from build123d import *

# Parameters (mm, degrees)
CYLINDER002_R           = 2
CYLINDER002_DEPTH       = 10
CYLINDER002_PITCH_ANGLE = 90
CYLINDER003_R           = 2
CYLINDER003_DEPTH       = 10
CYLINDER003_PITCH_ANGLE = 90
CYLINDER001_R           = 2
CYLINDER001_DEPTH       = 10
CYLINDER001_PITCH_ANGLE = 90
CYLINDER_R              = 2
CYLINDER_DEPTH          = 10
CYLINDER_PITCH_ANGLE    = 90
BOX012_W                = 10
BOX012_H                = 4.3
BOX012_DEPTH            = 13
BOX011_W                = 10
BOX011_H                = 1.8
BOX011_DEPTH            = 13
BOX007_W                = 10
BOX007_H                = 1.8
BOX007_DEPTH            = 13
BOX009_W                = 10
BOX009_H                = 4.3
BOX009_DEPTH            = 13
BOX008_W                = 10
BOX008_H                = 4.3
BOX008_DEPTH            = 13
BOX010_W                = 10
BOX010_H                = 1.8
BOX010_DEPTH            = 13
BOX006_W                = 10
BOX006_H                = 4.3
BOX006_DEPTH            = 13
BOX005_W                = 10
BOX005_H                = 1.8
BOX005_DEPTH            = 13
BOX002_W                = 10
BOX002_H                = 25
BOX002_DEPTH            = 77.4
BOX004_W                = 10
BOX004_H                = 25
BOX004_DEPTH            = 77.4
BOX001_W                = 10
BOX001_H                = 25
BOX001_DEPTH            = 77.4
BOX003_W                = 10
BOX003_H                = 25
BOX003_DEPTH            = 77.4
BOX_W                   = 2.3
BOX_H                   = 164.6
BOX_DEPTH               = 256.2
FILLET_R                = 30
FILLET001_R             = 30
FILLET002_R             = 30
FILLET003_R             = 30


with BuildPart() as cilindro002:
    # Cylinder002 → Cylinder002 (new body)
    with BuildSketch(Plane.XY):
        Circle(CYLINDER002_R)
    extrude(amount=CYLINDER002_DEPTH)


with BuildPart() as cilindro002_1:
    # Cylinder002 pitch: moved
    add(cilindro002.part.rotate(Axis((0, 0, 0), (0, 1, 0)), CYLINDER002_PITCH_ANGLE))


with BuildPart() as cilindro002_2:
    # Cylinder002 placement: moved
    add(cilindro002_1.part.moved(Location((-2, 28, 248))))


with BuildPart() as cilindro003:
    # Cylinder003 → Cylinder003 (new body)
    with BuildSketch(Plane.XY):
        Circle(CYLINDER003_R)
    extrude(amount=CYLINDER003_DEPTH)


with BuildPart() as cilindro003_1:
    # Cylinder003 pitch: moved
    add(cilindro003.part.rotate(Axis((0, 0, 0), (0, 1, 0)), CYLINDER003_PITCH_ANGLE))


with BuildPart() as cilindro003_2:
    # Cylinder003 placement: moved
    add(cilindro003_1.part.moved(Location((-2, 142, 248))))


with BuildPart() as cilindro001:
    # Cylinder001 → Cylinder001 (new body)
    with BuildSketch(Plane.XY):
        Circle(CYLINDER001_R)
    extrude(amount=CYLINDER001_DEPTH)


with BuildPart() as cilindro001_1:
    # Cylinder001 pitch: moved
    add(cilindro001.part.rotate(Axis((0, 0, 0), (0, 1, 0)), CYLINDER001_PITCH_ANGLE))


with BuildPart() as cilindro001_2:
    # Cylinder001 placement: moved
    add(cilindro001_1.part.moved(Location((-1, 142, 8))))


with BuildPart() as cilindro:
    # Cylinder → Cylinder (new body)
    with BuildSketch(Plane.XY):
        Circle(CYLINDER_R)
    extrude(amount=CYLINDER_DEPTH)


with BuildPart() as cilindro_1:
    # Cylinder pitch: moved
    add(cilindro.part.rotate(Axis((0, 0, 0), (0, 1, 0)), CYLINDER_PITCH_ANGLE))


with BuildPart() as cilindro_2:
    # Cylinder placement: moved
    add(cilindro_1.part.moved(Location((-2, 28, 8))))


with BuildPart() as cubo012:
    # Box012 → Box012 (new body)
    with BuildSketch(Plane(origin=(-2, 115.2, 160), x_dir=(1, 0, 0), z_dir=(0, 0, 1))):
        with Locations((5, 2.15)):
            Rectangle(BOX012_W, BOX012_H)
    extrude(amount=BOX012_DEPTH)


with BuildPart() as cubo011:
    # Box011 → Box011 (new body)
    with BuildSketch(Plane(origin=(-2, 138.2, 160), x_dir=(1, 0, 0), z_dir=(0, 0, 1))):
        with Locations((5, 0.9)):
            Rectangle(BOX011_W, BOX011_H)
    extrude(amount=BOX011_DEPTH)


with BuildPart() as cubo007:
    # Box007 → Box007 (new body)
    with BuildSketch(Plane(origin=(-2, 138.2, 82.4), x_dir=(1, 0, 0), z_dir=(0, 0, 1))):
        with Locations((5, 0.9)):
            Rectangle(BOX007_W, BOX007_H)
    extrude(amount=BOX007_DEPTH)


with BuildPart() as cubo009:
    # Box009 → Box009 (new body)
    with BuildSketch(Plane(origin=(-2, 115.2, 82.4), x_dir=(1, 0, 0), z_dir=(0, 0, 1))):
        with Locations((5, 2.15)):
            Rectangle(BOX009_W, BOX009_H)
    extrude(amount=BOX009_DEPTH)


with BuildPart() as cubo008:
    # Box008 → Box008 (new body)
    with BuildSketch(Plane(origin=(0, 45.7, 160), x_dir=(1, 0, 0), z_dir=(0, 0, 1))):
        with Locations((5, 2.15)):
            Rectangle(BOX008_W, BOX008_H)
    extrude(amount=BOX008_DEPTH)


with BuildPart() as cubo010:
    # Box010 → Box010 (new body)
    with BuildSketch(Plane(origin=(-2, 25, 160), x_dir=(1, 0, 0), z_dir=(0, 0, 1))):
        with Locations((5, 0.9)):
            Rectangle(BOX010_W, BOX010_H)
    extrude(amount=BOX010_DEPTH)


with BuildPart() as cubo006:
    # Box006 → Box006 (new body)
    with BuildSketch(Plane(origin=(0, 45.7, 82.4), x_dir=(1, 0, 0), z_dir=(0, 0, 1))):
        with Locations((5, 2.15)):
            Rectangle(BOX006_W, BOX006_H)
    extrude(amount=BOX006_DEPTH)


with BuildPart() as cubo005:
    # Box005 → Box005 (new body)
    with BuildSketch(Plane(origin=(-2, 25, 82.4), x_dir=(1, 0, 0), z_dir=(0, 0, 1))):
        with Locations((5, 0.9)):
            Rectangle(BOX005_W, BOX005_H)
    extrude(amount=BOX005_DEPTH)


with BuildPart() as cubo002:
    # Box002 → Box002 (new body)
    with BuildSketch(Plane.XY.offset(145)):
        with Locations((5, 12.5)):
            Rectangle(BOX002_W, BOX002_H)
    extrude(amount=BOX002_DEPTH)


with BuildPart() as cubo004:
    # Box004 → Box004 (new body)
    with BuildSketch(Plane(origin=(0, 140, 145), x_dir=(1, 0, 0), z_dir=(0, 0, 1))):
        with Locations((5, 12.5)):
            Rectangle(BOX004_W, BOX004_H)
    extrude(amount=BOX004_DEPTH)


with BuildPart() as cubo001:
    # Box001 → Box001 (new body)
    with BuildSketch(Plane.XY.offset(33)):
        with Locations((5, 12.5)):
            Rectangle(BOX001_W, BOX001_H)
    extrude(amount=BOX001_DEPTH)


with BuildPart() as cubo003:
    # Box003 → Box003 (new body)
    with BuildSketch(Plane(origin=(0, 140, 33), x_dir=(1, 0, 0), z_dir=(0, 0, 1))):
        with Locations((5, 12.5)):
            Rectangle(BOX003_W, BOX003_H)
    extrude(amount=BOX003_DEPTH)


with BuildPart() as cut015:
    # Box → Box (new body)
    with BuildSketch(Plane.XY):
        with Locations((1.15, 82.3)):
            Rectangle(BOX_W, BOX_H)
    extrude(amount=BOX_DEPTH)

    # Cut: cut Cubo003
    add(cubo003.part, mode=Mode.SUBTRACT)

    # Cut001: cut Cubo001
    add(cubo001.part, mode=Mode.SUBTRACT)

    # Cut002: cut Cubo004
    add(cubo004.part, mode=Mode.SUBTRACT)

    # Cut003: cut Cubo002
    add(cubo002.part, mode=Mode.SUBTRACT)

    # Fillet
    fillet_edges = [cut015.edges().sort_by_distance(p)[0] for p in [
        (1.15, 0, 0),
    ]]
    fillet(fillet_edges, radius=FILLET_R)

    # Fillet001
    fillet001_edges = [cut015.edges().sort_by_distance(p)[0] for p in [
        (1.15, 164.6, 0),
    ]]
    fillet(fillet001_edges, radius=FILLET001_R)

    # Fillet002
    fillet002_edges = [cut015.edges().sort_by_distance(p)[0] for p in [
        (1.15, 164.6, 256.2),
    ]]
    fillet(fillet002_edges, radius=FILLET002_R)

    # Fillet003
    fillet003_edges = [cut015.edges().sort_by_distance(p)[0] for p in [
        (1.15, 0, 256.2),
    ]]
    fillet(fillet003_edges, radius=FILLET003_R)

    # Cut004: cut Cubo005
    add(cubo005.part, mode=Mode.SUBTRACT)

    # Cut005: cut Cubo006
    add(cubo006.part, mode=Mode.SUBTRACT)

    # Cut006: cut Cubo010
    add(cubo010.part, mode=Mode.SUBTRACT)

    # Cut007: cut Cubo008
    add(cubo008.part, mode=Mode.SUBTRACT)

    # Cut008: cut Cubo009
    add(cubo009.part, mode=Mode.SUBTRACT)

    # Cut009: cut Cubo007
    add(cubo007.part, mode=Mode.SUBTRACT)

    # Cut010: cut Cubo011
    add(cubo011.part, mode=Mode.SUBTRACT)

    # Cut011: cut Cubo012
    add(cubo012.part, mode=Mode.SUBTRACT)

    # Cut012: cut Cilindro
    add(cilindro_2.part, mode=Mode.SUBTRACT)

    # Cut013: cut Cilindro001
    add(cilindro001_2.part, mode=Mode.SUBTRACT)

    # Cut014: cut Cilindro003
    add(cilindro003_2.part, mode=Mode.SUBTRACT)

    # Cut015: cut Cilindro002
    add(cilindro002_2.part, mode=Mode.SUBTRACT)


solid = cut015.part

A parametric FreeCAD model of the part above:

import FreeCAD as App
import Part
import Sketcher

V = App.Vector


def edges_at(feature, points):
    """Names of the edges that pass closest to the given points."""
    edges = feature.Shape.Edges
    near = lambda p: min(range(len(edges)), key=lambda i: edges[i].distToShape(Part.Vertex(*p))[0])
    return sorted({f"Edge{near(p) + 1}" for p in points})


def add_polygon(sketch, points):
    """Adds a closed chain of lines whose ends are joined by coincident constraints."""
    first, n = sketch.GeometryCount, len(points)
    for a, b in zip(points, points[1:] + points[:1]):
        sketch.addGeometry(Part.LineSegment(App.Vector(*a, 0), App.Vector(*b, 0)), False)
    for i in range(n):
        sketch.addConstraint(Sketcher.Constraint("Coincident", first + i, 2, first + (i + 1) % n, 1))

doc = App.newDocument("Part")
params = doc.addObject("Spreadsheet::Sheet", "Params")
for row, (alias, value) in enumerate([
    ("sketch1_diameter", "4 mm"),
    ("pad1_length", "10 mm"),
    ("sketch2_diameter", "4 mm"),
    ("pad2_length", "10 mm"),
    ("sketch3_diameter", "4 mm"),
    ("pad3_length", "10 mm"),
    ("sketch4_diameter", "4 mm"),
    ("pad4_length", "10 mm"),
    ("sketch5_width", "10 mm"),
    ("sketch5_height", "4.3 mm"),
    ("pad5_length", "13 mm"),
    ("sketch6_width", "10 mm"),
    ("sketch6_height", "1.8 mm"),
    ("pad6_length", "13 mm"),
    ("sketch7_width", "10 mm"),
    ("sketch7_height", "1.8 mm"),
    ("pad7_length", "13 mm"),
    ("sketch8_width", "10 mm"),
    ("sketch8_height", "4.3 mm"),
    ("pad8_length", "13 mm"),
    ("sketch9_width", "10 mm"),
    ("sketch9_height", "4.3 mm"),
    ("pad9_length", "13 mm"),
    ("sketch10_width", "10 mm"),
    ("sketch10_height", "1.8 mm"),
    ("pad10_length", "13 mm"),
    ("sketch11_width", "10 mm"),
    ("sketch11_height", "4.3 mm"),
    ("pad11_length", "13 mm"),
    ("sketch12_width", "10 mm"),
    ("sketch12_height", "1.8 mm"),
    ("pad12_length", "13 mm"),
    ("sketch13_width", "10 mm"),
    ("sketch13_height", "25 mm"),
    ("pad13_length", "77.4 mm"),
    ("sketch14_width", "10 mm"),
    ("sketch14_height", "25 mm"),
    ("pad14_length", "77.4 mm"),
    ("sketch15_width", "10 mm"),
    ("sketch15_height", "25 mm"),
    ("pad15_length", "77.4 mm"),
    ("sketch16_width", "10 mm"),
    ("sketch16_height", "25 mm"),
    ("pad16_length", "77.4 mm"),
    ("sketch17_width", "2.3 mm"),
    ("sketch17_height", "164.6 mm"),
    ("pad17_length", "256.2 mm"),
    ("fillet_radius", "30 mm"),
    ("fillet2_radius", "30 mm"),
    ("fillet3_radius", "30 mm"),
    ("fillet4_radius", "30 mm"),
], start=1):
    params.set(f"A{row}", alias)
    params.set(f"B{row}", "=" + value)
    params.setAlias(f"B{row}", alias)

body = doc.addObject("PartDesign::Body", "Body")

sketch1 = body.newObject("Sketcher::SketchObject", "Sketch")
sketch1.AttachmentSupport = (doc.getObject("XY_Plane"), [""])
sketch1.MapMode = "FlatFace"
sketch1.addGeometry(Part.Circle(V(0, 0, 0), V(0, 0, 1), 2), False)
sketch1.addConstraint([
    Sketcher.Constraint("Coincident", 0, 3, -1, 1),
    Sketcher.Constraint("Diameter", 0, 4.0),
])
sketch1.setExpression("Constraints[1]", "Params.sketch1_diameter")
pad1 = body.newObject("PartDesign::Pad", "Pad")
pad1.Profile = sketch1
pad1.setExpression("Length", "Params.pad1_length")
body2 = doc.addObject("PartDesign::Body", "Body001")
doc.recompute()

body.Placement = App.Placement(V(0, 0, 0), App.Rotation(V(0, 1, 0), 90))
boolean = body2.newObject("PartDesign::Boolean", "Boolean")
boolean.Type = "Fuse"
boolean.addObjects([body])
body3 = doc.addObject("PartDesign::Body", "Body002")
doc.recompute()

body2.Placement = App.Placement(V(-2, 28, 248), App.Rotation(V(0, 0, 1), 0))
boolean2 = body3.newObject("PartDesign::Boolean", "Boolean001")
boolean2.Type = "Fuse"
boolean2.addObjects([body2])
body4 = doc.addObject("PartDesign::Body", "Body003")

sketch2 = body4.newObject("Sketcher::SketchObject", "Sketch001")
sketch2.AttachmentSupport = (doc.getObject("XY_Plane003"), [""])
sketch2.MapMode = "FlatFace"
sketch2.addGeometry(Part.Circle(V(0, 0, 0), V(0, 0, 1), 2), False)
sketch2.addConstraint([
    Sketcher.Constraint("Coincident", 0, 3, -1, 1),
    Sketcher.Constraint("Diameter", 0, 4.0),
])
sketch2.setExpression("Constraints[1]", "Params.sketch2_diameter")
pad2 = body4.newObject("PartDesign::Pad", "Pad001")
pad2.Profile = sketch2
pad2.setExpression("Length", "Params.pad2_length")
body5 = doc.addObject("PartDesign::Body", "Body004")
doc.recompute()

body4.Placement = App.Placement(V(0, 0, 0), App.Rotation(V(0, 1, 0), 90))
boolean3 = body5.newObject("PartDesign::Boolean", "Boolean002")
boolean3.Type = "Fuse"
boolean3.addObjects([body4])
body6 = doc.addObject("PartDesign::Body", "Body005")
doc.recompute()

body5.Placement = App.Placement(V(-2, 142, 248), App.Rotation(V(0, 0, 1), 0))
boolean4 = body6.newObject("PartDesign::Boolean", "Boolean003")
boolean4.Type = "Fuse"
boolean4.addObjects([body5])
body7 = doc.addObject("PartDesign::Body", "Body006")

sketch3 = body7.newObject("Sketcher::SketchObject", "Sketch002")
sketch3.AttachmentSupport = (doc.getObject("XY_Plane006"), [""])
sketch3.MapMode = "FlatFace"
sketch3.addGeometry(Part.Circle(V(0, 0, 0), V(0, 0, 1), 2), False)
sketch3.addConstraint([
    Sketcher.Constraint("Coincident", 0, 3, -1, 1),
    Sketcher.Constraint("Diameter", 0, 4.0),
])
sketch3.setExpression("Constraints[1]", "Params.sketch3_diameter")
pad3 = body7.newObject("PartDesign::Pad", "Pad002")
pad3.Profile = sketch3
pad3.setExpression("Length", "Params.pad3_length")
body8 = doc.addObject("PartDesign::Body", "Body007")
doc.recompute()

body7.Placement = App.Placement(V(0, 0, 0), App.Rotation(V(0, 1, 0), 90))
boolean5 = body8.newObject("PartDesign::Boolean", "Boolean004")
boolean5.Type = "Fuse"
boolean5.addObjects([body7])
body9 = doc.addObject("PartDesign::Body", "Body008")
doc.recompute()

body8.Placement = App.Placement(V(-1, 142, 8), App.Rotation(V(0, 0, 1), 0))
boolean6 = body9.newObject("PartDesign::Boolean", "Boolean005")
boolean6.Type = "Fuse"
boolean6.addObjects([body8])
body10 = doc.addObject("PartDesign::Body", "Body009")

sketch4 = body10.newObject("Sketcher::SketchObject", "Sketch003")
sketch4.AttachmentSupport = (doc.getObject("XY_Plane009"), [""])
sketch4.MapMode = "FlatFace"
sketch4.addGeometry(Part.Circle(V(0, 0, 0), V(0, 0, 1), 2), False)
sketch4.addConstraint([
    Sketcher.Constraint("Coincident", 0, 3, -1, 1),
    Sketcher.Constraint("Diameter", 0, 4.0),
])
sketch4.setExpression("Constraints[1]", "Params.sketch4_diameter")
pad4 = body10.newObject("PartDesign::Pad", "Pad003")
pad4.Profile = sketch4
pad4.setExpression("Length", "Params.pad4_length")
body11 = doc.addObject("PartDesign::Body", "Body010")
doc.recompute()

body10.Placement = App.Placement(V(0, 0, 0), App.Rotation(V(0, 1, 0), 90))
boolean7 = body11.newObject("PartDesign::Boolean", "Boolean006")
boolean7.Type = "Fuse"
boolean7.addObjects([body10])
body12 = doc.addObject("PartDesign::Body", "Body011")
doc.recompute()

body11.Placement = App.Placement(V(-2, 28, 8), App.Rotation(V(0, 0, 1), 0))
boolean8 = body12.newObject("PartDesign::Boolean", "Boolean007")
boolean8.Type = "Fuse"
boolean8.addObjects([body11])
body13 = doc.addObject("PartDesign::Body", "Body012")

sketch5 = body13.newObject("Sketcher::SketchObject", "Sketch004")
sketch5.AttachmentSupport = (doc.getObject("XY_Plane012"), [""])
sketch5.MapMode = "FlatFace"
sketch5.AttachmentOffset = App.Placement(V(0, 0, 160), App.Rotation())
add_polygon(sketch5, [(-2, 119.5), (-2, 115.2), (8, 115.2), (8, 119.5)])
sketch5.addConstraint([
    Sketcher.Constraint("Vertical", 0),
    Sketcher.Constraint("Horizontal", 1),
    Sketcher.Constraint("Vertical", 2),
    Sketcher.Constraint("Horizontal", 3),
    Sketcher.Constraint("DistanceX", 1, 1, 1, 2, 10.0),
    Sketcher.Constraint("DistanceY", 0, 2, 0, 1, 4.3),
    Sketcher.Constraint("DistanceX", 0, 2, -1, 1, 2.0),
    Sketcher.Constraint("DistanceY", -1, 1, 0, 2, 115.2),
])
sketch5.setExpression("Constraints[8]", "Params.sketch5_width")
sketch5.setExpression("Constraints[9]", "Params.sketch5_height")
pad5 = body13.newObject("PartDesign::Pad", "Pad004")
pad5.Profile = sketch5
pad5.setExpression("Length", "Params.pad5_length")
body14 = doc.addObject("PartDesign::Body", "Body013")

sketch6 = body14.newObject("Sketcher::SketchObject", "Sketch005")
sketch6.AttachmentSupport = (doc.getObject("XY_Plane013"), [""])
sketch6.MapMode = "FlatFace"
sketch6.AttachmentOffset = App.Placement(V(0, 0, 160), App.Rotation())
add_polygon(sketch6, [(-2, 140), (-2, 138.2), (8, 138.2), (8, 140)])
sketch6.addConstraint([
    Sketcher.Constraint("Vertical", 0),
    Sketcher.Constraint("Horizontal", 1),
    Sketcher.Constraint("Vertical", 2),
    Sketcher.Constraint("Horizontal", 3),
    Sketcher.Constraint("DistanceX", 1, 1, 1, 2, 10.0),
    Sketcher.Constraint("DistanceY", 0, 2, 0, 1, 1.8),
    Sketcher.Constraint("DistanceX", 0, 2, -1, 1, 2.0),
    Sketcher.Constraint("DistanceY", -1, 1, 2, 2, 140.0),
])
sketch6.setExpression("Constraints[8]", "Params.sketch6_width")
sketch6.setExpression("Constraints[9]", "Params.sketch6_height")
pad6 = body14.newObject("PartDesign::Pad", "Pad005")
pad6.Profile = sketch6
pad6.setExpression("Length", "Params.pad6_length")
body15 = doc.addObject("PartDesign::Body", "Body014")

sketch7 = body15.newObject("Sketcher::SketchObject", "Sketch006")
sketch7.AttachmentSupport = (doc.getObject("XY_Plane014"), [""])
sketch7.MapMode = "FlatFace"
sketch7.AttachmentOffset = App.Placement(V(0, 0, 82.4), App.Rotation())
add_polygon(sketch7, [(-2, 140), (-2, 138.2), (8, 138.2), (8, 140)])
sketch7.addConstraint([
    Sketcher.Constraint("Vertical", 0),
    Sketcher.Constraint("Horizontal", 1),
    Sketcher.Constraint("Vertical", 2),
    Sketcher.Constraint("Horizontal", 3),
    Sketcher.Constraint("DistanceX", 1, 1, 1, 2, 10.0),
    Sketcher.Constraint("DistanceY", 0, 2, 0, 1, 1.8),
    Sketcher.Constraint("DistanceX", 0, 2, -1, 1, 2.0),
    Sketcher.Constraint("DistanceY", -1, 1, 2, 2, 140.0),
])
sketch7.setExpression("Constraints[8]", "Params.sketch7_width")
sketch7.setExpression("Constraints[9]", "Params.sketch7_height")
pad7 = body15.newObject("PartDesign::Pad", "Pad006")
pad7.Profile = sketch7
pad7.setExpression("Length", "Params.pad7_length")
body16 = doc.addObject("PartDesign::Body", "Body015")

sketch8 = body16.newObject("Sketcher::SketchObject", "Sketch007")
sketch8.AttachmentSupport = (doc.getObject("XY_Plane015"), [""])
sketch8.MapMode = "FlatFace"
sketch8.AttachmentOffset = App.Placement(V(0, 0, 82.4), App.Rotation())
add_polygon(sketch8, [(-2, 119.5), (-2, 115.2), (8, 115.2), (8, 119.5)])
sketch8.addConstraint([
    Sketcher.Constraint("Vertical", 0),
    Sketcher.Constraint("Horizontal", 1),
    Sketcher.Constraint("Vertical", 2),
    Sketcher.Constraint("Horizontal", 3),
    Sketcher.Constraint("DistanceX", 1, 1, 1, 2, 10.0),
    Sketcher.Constraint("DistanceY", 0, 2, 0, 1, 4.3),
    Sketcher.Constraint("DistanceX", 0, 2, -1, 1, 2.0),
    Sketcher.Constraint("DistanceY", -1, 1, 0, 2, 115.2),
])
sketch8.setExpression("Constraints[8]", "Params.sketch8_width")
sketch8.setExpression("Constraints[9]", "Params.sketch8_height")
pad8 = body16.newObject("PartDesign::Pad", "Pad007")
pad8.Profile = sketch8
pad8.setExpression("Length", "Params.pad8_length")
body17 = doc.addObject("PartDesign::Body", "Body016")

sketch9 = body17.newObject("Sketcher::SketchObject", "Sketch008")
sketch9.AttachmentSupport = (doc.getObject("XY_Plane016"), [""])
sketch9.MapMode = "FlatFace"
sketch9.AttachmentOffset = App.Placement(V(0, 0, 160), App.Rotation())
add_polygon(sketch9, [(0, 50), (0, 45.7), (10, 45.7), (10, 50)])
sketch9.addConstraint([
    Sketcher.Constraint("Vertical", 0),
    Sketcher.Constraint("Horizontal", 1),
    Sketcher.Constraint("Vertical", 2),
    Sketcher.Constraint("Horizontal", 3),
    Sketcher.Constraint("PointOnObject", 0, 2, -2),
    Sketcher.Constraint("DistanceX", 1, 1, 1, 2, 10.0),
    Sketcher.Constraint("DistanceY", 0, 2, 0, 1, 4.3),
    Sketcher.Constraint("DistanceY", -1, 1, 2, 2, 50.0),
])
sketch9.setExpression("Constraints[9]", "Params.sketch9_width")
sketch9.setExpression("Constraints[10]", "Params.sketch9_height")
pad9 = body17.newObject("PartDesign::Pad", "Pad008")
pad9.Profile = sketch9
pad9.setExpression("Length", "Params.pad9_length")
body18 = doc.addObject("PartDesign::Body", "Body017")

sketch10 = body18.newObject("Sketcher::SketchObject", "Sketch009")
sketch10.AttachmentSupport = (doc.getObject("XY_Plane017"), [""])
sketch10.MapMode = "FlatFace"
sketch10.AttachmentOffset = App.Placement(V(0, 0, 160), App.Rotation())
add_polygon(sketch10, [(-2, 26.8), (-2, 25), (8, 25), (8, 26.8)])
sketch10.addConstraint([
    Sketcher.Constraint("Vertical", 0),
    Sketcher.Constraint("Horizontal", 1),
    Sketcher.Constraint("Vertical", 2),
    Sketcher.Constraint("Horizontal", 3),
    Sketcher.Constraint("DistanceX", 1, 1, 1, 2, 10.0),
    Sketcher.Constraint("DistanceY", 0, 2, 0, 1, 1.8),
    Sketcher.Constraint("DistanceX", 0, 2, -1, 1, 2.0),
    Sketcher.Constraint("DistanceY", -1, 1, 0, 2, 25.0),
])
sketch10.setExpression("Constraints[8]", "Params.sketch10_width")
sketch10.setExpression("Constraints[9]", "Params.sketch10_height")
pad10 = body18.newObject("PartDesign::Pad", "Pad009")
pad10.Profile = sketch10
pad10.setExpression("Length", "Params.pad10_length")
body19 = doc.addObject("PartDesign::Body", "Body018")

sketch11 = body19.newObject("Sketcher::SketchObject", "Sketch010")
sketch11.AttachmentSupport = (doc.getObject("XY_Plane018"), [""])
sketch11.MapMode = "FlatFace"
sketch11.AttachmentOffset = App.Placement(V(0, 0, 82.4), App.Rotation())
add_polygon(sketch11, [(0, 50), (0, 45.7), (10, 45.7), (10, 50)])
sketch11.addConstraint([
    Sketcher.Constraint("Vertical", 0),
    Sketcher.Constraint("Horizontal", 1),
    Sketcher.Constraint("Vertical", 2),
    Sketcher.Constraint("Horizontal", 3),
    Sketcher.Constraint("PointOnObject", 0, 2, -2),
    Sketcher.Constraint("DistanceX", 1, 1, 1, 2, 10.0),
    Sketcher.Constraint("DistanceY", 0, 2, 0, 1, 4.3),
    Sketcher.Constraint("DistanceY", -1, 1, 2, 2, 50.0),
])
sketch11.setExpression("Constraints[9]", "Params.sketch11_width")
sketch11.setExpression("Constraints[10]", "Params.sketch11_height")
pad11 = body19.newObject("PartDesign::Pad", "Pad010")
pad11.Profile = sketch11
pad11.setExpression("Length", "Params.pad11_length")
body20 = doc.addObject("PartDesign::Body", "Body019")

sketch12 = body20.newObject("Sketcher::SketchObject", "Sketch011")
sketch12.AttachmentSupport = (doc.getObject("XY_Plane019"), [""])
sketch12.MapMode = "FlatFace"
sketch12.AttachmentOffset = App.Placement(V(0, 0, 82.4), App.Rotation())
add_polygon(sketch12, [(-2, 26.8), (-2, 25), (8, 25), (8, 26.8)])
sketch12.addConstraint([
    Sketcher.Constraint("Vertical", 0),
    Sketcher.Constraint("Horizontal", 1),
    Sketcher.Constraint("Vertical", 2),
    Sketcher.Constraint("Horizontal", 3),
    Sketcher.Constraint("DistanceX", 1, 1, 1, 2, 10.0),
    Sketcher.Constraint("DistanceY", 0, 2, 0, 1, 1.8),
    Sketcher.Constraint("DistanceX", 0, 2, -1, 1, 2.0),
    Sketcher.Constraint("DistanceY", -1, 1, 0, 2, 25.0),
])
sketch12.setExpression("Constraints[8]", "Params.sketch12_width")
sketch12.setExpression("Constraints[9]", "Params.sketch12_height")
pad12 = body20.newObject("PartDesign::Pad", "Pad011")
pad12.Profile = sketch12
pad12.setExpression("Length", "Params.pad12_length")
body21 = doc.addObject("PartDesign::Body", "Body020")

sketch13 = body21.newObject("Sketcher::SketchObject", "Sketch012")
sketch13.AttachmentSupport = (doc.getObject("XY_Plane020"), [""])
sketch13.MapMode = "FlatFace"
sketch13.AttachmentOffset = App.Placement(V(0, 0, 145), App.Rotation())
add_polygon(sketch13, [(0, 25), (0, 0), (10, 0), (10, 25)])
sketch13.addConstraint([
    Sketcher.Constraint("Vertical", 0),
    Sketcher.Constraint("Horizontal", 1),
    Sketcher.Constraint("Vertical", 2),
    Sketcher.Constraint("Horizontal", 3),
    Sketcher.Constraint("Coincident", 0, 2, -1, 1),
    Sketcher.Constraint("DistanceX", 1, 1, 1, 2, 10.0),
    Sketcher.Constraint("DistanceY", 0, 2, 0, 1, 25.0),
])
sketch13.setExpression("Constraints[9]", "Params.sketch13_width")
sketch13.setExpression("Constraints[10]", "Params.sketch13_height")
pad13 = body21.newObject("PartDesign::Pad", "Pad012")
pad13.Profile = sketch13
pad13.setExpression("Length", "Params.pad13_length")
body22 = doc.addObject("PartDesign::Body", "Body021")

sketch14 = body22.newObject("Sketcher::SketchObject", "Sketch013")
sketch14.AttachmentSupport = (doc.getObject("XY_Plane021"), [""])
sketch14.MapMode = "FlatFace"
sketch14.AttachmentOffset = App.Placement(V(0, 0, 145), App.Rotation())
add_polygon(sketch14, [(0, 165), (0, 140), (10, 140), (10, 165)])
sketch14.addConstraint([
    Sketcher.Constraint("Vertical", 0),
    Sketcher.Constraint("Horizontal", 1),
    Sketcher.Constraint("Vertical", 2),
    Sketcher.Constraint("Horizontal", 3),
    Sketcher.Constraint("PointOnObject", 0, 2, -2),
    Sketcher.Constraint("DistanceX", 1, 1, 1, 2, 10.0),
    Sketcher.Constraint("DistanceY", 0, 2, 0, 1, 25.0),
    Sketcher.Constraint("DistanceY", -1, 1, 0, 2, 140.0),
])
sketch14.setExpression("Constraints[9]", "Params.sketch14_width")
sketch14.setExpression("Constraints[10]", "Params.sketch14_height")
pad14 = body22.newObject("PartDesign::Pad", "Pad013")
pad14.Profile = sketch14
pad14.setExpression("Length", "Params.pad14_length")
body23 = doc.addObject("PartDesign::Body", "Body022")

sketch15 = body23.newObject("Sketcher::SketchObject", "Sketch014")
sketch15.AttachmentSupport = (doc.getObject("XY_Plane022"), [""])
sketch15.MapMode = "FlatFace"
sketch15.AttachmentOffset = App.Placement(V(0, 0, 33), App.Rotation())
add_polygon(sketch15, [(0, 25), (0, 0), (10, 0), (10, 25)])
sketch15.addConstraint([
    Sketcher.Constraint("Vertical", 0),
    Sketcher.Constraint("Horizontal", 1),
    Sketcher.Constraint("Vertical", 2),
    Sketcher.Constraint("Horizontal", 3),
    Sketcher.Constraint("Coincident", 0, 2, -1, 1),
    Sketcher.Constraint("DistanceX", 1, 1, 1, 2, 10.0),
    Sketcher.Constraint("DistanceY", 0, 2, 0, 1, 25.0),
])
sketch15.setExpression("Constraints[9]", "Params.sketch15_width")
sketch15.setExpression("Constraints[10]", "Params.sketch15_height")
pad15 = body23.newObject("PartDesign::Pad", "Pad014")
pad15.Profile = sketch15
pad15.setExpression("Length", "Params.pad15_length")
body24 = doc.addObject("PartDesign::Body", "Body023")

sketch16 = body24.newObject("Sketcher::SketchObject", "Sketch015")
sketch16.AttachmentSupport = (doc.getObject("XY_Plane023"), [""])
sketch16.MapMode = "FlatFace"
sketch16.AttachmentOffset = App.Placement(V(0, 0, 33), App.Rotation())
add_polygon(sketch16, [(0, 165), (0, 140), (10, 140), (10, 165)])
sketch16.addConstraint([
    Sketcher.Constraint("Vertical", 0),
    Sketcher.Constraint("Horizontal", 1),
    Sketcher.Constraint("Vertical", 2),
    Sketcher.Constraint("Horizontal", 3),
    Sketcher.Constraint("PointOnObject", 0, 2, -2),
    Sketcher.Constraint("DistanceX", 1, 1, 1, 2, 10.0),
    Sketcher.Constraint("DistanceY", 0, 2, 0, 1, 25.0),
    Sketcher.Constraint("DistanceY", -1, 1, 0, 2, 140.0),
])
sketch16.setExpression("Constraints[9]", "Params.sketch16_width")
sketch16.setExpression("Constraints[10]", "Params.sketch16_height")
pad16 = body24.newObject("PartDesign::Pad", "Pad015")
pad16.Profile = sketch16
pad16.setExpression("Length", "Params.pad16_length")
body25 = doc.addObject("PartDesign::Body", "Body024")

sketch17 = body25.newObject("Sketcher::SketchObject", "Sketch016")
sketch17.AttachmentSupport = (doc.getObject("XY_Plane024"), [""])
sketch17.MapMode = "FlatFace"
add_polygon(sketch17, [(0, 164.6), (0, 0), (2.3, 0), (2.3, 164.6)])
sketch17.addConstraint([
    Sketcher.Constraint("Vertical", 0),
    Sketcher.Constraint("Horizontal", 1),
    Sketcher.Constraint("Vertical", 2),
    Sketcher.Constraint("Horizontal", 3),
    Sketcher.Constraint("Coincident", 0, 2, -1, 1),
    Sketcher.Constraint("DistanceX", 1, 1, 1, 2, 2.3),
    Sketcher.Constraint("DistanceY", 0, 2, 0, 1, 164.6),
])
sketch17.setExpression("Constraints[9]", "Params.sketch17_width")
sketch17.setExpression("Constraints[10]", "Params.sketch17_height")
pad17 = body25.newObject("PartDesign::Pad", "Pad016")
pad17.Profile = sketch17
pad17.setExpression("Length", "Params.pad17_length")
doc.recompute()

boolean9 = body25.newObject("PartDesign::Boolean", "Boolean008")
boolean9.Type = "Cut"
boolean9.addObjects([body24])
doc.recompute()

boolean10 = body25.newObject("PartDesign::Boolean", "Boolean009")
boolean10.Type = "Cut"
boolean10.addObjects([body23])
doc.recompute()

boolean11 = body25.newObject("PartDesign::Boolean", "Boolean010")
boolean11.Type = "Cut"
boolean11.addObjects([body22])
doc.recompute()

boolean12 = body25.newObject("PartDesign::Boolean", "Boolean011")
boolean12.Type = "Cut"
boolean12.addObjects([body21])
doc.recompute()

fillet = body25.newObject("PartDesign::Fillet", "Fillet")
fillet.Base = (boolean12, edges_at(boolean12, [(1.15, 0, 0)]))
fillet.setExpression("Radius", "Params.fillet_radius")
doc.recompute()

fillet2 = body25.newObject("PartDesign::Fillet", "Fillet001")
fillet2.Base = (fillet, edges_at(fillet, [(1.15, 164.6, 0)]))
fillet2.setExpression("Radius", "Params.fillet2_radius")
doc.recompute()

fillet3 = body25.newObject("PartDesign::Fillet", "Fillet002")
fillet3.Base = (fillet2, edges_at(fillet2, [(1.15, 164.6, 256.2)]))
fillet3.setExpression("Radius", "Params.fillet3_radius")
doc.recompute()

fillet4 = body25.newObject("PartDesign::Fillet", "Fillet003")
fillet4.Base = (fillet3, edges_at(fillet3, [(1.15, 0, 256.2)]))
fillet4.setExpression("Radius", "Params.fillet4_radius")
doc.recompute()

boolean13 = body25.newObject("PartDesign::Boolean", "Boolean012")
boolean13.Type = "Cut"
boolean13.addObjects([body20])
doc.recompute()

boolean14 = body25.newObject("PartDesign::Boolean", "Boolean013")
boolean14.Type = "Cut"
boolean14.addObjects([body19])
doc.recompute()

boolean15 = body25.newObject("PartDesign::Boolean", "Boolean014")
boolean15.Type = "Cut"
boolean15.addObjects([body18])
doc.recompute()

boolean16 = body25.newObject("PartDesign::Boolean", "Boolean015")
boolean16.Type = "Cut"
boolean16.addObjects([body17])
doc.recompute()

boolean17 = body25.newObject("PartDesign::Boolean", "Boolean016")
boolean17.Type = "Cut"
boolean17.addObjects([body16])
doc.recompute()

boolean18 = body25.newObject("PartDesign::Boolean", "Boolean017")
boolean18.Type = "Cut"
boolean18.addObjects([body15])
doc.recompute()

boolean19 = body25.newObject("PartDesign::Boolean", "Boolean018")
boolean19.Type = "Cut"
boolean19.addObjects([body14])
doc.recompute()

boolean20 = body25.newObject("PartDesign::Boolean", "Boolean019")
boolean20.Type = "Cut"
boolean20.addObjects([body13])
doc.recompute()

boolean21 = body25.newObject("PartDesign::Boolean", "Boolean020")
boolean21.Type = "Cut"
boolean21.addObjects([body12])
doc.recompute()

boolean22 = body25.newObject("PartDesign::Boolean", "Boolean021")
boolean22.Type = "Cut"
boolean22.addObjects([body9])
doc.recompute()

boolean23 = body25.newObject("PartDesign::Boolean", "Boolean022")
boolean23.Type = "Cut"
boolean23.addObjects([body6])
doc.recompute()

boolean24 = body25.newObject("PartDesign::Boolean", "Boolean023")
boolean24.Type = "Cut"
boolean24.addObjects([body3])

doc.recompute()
